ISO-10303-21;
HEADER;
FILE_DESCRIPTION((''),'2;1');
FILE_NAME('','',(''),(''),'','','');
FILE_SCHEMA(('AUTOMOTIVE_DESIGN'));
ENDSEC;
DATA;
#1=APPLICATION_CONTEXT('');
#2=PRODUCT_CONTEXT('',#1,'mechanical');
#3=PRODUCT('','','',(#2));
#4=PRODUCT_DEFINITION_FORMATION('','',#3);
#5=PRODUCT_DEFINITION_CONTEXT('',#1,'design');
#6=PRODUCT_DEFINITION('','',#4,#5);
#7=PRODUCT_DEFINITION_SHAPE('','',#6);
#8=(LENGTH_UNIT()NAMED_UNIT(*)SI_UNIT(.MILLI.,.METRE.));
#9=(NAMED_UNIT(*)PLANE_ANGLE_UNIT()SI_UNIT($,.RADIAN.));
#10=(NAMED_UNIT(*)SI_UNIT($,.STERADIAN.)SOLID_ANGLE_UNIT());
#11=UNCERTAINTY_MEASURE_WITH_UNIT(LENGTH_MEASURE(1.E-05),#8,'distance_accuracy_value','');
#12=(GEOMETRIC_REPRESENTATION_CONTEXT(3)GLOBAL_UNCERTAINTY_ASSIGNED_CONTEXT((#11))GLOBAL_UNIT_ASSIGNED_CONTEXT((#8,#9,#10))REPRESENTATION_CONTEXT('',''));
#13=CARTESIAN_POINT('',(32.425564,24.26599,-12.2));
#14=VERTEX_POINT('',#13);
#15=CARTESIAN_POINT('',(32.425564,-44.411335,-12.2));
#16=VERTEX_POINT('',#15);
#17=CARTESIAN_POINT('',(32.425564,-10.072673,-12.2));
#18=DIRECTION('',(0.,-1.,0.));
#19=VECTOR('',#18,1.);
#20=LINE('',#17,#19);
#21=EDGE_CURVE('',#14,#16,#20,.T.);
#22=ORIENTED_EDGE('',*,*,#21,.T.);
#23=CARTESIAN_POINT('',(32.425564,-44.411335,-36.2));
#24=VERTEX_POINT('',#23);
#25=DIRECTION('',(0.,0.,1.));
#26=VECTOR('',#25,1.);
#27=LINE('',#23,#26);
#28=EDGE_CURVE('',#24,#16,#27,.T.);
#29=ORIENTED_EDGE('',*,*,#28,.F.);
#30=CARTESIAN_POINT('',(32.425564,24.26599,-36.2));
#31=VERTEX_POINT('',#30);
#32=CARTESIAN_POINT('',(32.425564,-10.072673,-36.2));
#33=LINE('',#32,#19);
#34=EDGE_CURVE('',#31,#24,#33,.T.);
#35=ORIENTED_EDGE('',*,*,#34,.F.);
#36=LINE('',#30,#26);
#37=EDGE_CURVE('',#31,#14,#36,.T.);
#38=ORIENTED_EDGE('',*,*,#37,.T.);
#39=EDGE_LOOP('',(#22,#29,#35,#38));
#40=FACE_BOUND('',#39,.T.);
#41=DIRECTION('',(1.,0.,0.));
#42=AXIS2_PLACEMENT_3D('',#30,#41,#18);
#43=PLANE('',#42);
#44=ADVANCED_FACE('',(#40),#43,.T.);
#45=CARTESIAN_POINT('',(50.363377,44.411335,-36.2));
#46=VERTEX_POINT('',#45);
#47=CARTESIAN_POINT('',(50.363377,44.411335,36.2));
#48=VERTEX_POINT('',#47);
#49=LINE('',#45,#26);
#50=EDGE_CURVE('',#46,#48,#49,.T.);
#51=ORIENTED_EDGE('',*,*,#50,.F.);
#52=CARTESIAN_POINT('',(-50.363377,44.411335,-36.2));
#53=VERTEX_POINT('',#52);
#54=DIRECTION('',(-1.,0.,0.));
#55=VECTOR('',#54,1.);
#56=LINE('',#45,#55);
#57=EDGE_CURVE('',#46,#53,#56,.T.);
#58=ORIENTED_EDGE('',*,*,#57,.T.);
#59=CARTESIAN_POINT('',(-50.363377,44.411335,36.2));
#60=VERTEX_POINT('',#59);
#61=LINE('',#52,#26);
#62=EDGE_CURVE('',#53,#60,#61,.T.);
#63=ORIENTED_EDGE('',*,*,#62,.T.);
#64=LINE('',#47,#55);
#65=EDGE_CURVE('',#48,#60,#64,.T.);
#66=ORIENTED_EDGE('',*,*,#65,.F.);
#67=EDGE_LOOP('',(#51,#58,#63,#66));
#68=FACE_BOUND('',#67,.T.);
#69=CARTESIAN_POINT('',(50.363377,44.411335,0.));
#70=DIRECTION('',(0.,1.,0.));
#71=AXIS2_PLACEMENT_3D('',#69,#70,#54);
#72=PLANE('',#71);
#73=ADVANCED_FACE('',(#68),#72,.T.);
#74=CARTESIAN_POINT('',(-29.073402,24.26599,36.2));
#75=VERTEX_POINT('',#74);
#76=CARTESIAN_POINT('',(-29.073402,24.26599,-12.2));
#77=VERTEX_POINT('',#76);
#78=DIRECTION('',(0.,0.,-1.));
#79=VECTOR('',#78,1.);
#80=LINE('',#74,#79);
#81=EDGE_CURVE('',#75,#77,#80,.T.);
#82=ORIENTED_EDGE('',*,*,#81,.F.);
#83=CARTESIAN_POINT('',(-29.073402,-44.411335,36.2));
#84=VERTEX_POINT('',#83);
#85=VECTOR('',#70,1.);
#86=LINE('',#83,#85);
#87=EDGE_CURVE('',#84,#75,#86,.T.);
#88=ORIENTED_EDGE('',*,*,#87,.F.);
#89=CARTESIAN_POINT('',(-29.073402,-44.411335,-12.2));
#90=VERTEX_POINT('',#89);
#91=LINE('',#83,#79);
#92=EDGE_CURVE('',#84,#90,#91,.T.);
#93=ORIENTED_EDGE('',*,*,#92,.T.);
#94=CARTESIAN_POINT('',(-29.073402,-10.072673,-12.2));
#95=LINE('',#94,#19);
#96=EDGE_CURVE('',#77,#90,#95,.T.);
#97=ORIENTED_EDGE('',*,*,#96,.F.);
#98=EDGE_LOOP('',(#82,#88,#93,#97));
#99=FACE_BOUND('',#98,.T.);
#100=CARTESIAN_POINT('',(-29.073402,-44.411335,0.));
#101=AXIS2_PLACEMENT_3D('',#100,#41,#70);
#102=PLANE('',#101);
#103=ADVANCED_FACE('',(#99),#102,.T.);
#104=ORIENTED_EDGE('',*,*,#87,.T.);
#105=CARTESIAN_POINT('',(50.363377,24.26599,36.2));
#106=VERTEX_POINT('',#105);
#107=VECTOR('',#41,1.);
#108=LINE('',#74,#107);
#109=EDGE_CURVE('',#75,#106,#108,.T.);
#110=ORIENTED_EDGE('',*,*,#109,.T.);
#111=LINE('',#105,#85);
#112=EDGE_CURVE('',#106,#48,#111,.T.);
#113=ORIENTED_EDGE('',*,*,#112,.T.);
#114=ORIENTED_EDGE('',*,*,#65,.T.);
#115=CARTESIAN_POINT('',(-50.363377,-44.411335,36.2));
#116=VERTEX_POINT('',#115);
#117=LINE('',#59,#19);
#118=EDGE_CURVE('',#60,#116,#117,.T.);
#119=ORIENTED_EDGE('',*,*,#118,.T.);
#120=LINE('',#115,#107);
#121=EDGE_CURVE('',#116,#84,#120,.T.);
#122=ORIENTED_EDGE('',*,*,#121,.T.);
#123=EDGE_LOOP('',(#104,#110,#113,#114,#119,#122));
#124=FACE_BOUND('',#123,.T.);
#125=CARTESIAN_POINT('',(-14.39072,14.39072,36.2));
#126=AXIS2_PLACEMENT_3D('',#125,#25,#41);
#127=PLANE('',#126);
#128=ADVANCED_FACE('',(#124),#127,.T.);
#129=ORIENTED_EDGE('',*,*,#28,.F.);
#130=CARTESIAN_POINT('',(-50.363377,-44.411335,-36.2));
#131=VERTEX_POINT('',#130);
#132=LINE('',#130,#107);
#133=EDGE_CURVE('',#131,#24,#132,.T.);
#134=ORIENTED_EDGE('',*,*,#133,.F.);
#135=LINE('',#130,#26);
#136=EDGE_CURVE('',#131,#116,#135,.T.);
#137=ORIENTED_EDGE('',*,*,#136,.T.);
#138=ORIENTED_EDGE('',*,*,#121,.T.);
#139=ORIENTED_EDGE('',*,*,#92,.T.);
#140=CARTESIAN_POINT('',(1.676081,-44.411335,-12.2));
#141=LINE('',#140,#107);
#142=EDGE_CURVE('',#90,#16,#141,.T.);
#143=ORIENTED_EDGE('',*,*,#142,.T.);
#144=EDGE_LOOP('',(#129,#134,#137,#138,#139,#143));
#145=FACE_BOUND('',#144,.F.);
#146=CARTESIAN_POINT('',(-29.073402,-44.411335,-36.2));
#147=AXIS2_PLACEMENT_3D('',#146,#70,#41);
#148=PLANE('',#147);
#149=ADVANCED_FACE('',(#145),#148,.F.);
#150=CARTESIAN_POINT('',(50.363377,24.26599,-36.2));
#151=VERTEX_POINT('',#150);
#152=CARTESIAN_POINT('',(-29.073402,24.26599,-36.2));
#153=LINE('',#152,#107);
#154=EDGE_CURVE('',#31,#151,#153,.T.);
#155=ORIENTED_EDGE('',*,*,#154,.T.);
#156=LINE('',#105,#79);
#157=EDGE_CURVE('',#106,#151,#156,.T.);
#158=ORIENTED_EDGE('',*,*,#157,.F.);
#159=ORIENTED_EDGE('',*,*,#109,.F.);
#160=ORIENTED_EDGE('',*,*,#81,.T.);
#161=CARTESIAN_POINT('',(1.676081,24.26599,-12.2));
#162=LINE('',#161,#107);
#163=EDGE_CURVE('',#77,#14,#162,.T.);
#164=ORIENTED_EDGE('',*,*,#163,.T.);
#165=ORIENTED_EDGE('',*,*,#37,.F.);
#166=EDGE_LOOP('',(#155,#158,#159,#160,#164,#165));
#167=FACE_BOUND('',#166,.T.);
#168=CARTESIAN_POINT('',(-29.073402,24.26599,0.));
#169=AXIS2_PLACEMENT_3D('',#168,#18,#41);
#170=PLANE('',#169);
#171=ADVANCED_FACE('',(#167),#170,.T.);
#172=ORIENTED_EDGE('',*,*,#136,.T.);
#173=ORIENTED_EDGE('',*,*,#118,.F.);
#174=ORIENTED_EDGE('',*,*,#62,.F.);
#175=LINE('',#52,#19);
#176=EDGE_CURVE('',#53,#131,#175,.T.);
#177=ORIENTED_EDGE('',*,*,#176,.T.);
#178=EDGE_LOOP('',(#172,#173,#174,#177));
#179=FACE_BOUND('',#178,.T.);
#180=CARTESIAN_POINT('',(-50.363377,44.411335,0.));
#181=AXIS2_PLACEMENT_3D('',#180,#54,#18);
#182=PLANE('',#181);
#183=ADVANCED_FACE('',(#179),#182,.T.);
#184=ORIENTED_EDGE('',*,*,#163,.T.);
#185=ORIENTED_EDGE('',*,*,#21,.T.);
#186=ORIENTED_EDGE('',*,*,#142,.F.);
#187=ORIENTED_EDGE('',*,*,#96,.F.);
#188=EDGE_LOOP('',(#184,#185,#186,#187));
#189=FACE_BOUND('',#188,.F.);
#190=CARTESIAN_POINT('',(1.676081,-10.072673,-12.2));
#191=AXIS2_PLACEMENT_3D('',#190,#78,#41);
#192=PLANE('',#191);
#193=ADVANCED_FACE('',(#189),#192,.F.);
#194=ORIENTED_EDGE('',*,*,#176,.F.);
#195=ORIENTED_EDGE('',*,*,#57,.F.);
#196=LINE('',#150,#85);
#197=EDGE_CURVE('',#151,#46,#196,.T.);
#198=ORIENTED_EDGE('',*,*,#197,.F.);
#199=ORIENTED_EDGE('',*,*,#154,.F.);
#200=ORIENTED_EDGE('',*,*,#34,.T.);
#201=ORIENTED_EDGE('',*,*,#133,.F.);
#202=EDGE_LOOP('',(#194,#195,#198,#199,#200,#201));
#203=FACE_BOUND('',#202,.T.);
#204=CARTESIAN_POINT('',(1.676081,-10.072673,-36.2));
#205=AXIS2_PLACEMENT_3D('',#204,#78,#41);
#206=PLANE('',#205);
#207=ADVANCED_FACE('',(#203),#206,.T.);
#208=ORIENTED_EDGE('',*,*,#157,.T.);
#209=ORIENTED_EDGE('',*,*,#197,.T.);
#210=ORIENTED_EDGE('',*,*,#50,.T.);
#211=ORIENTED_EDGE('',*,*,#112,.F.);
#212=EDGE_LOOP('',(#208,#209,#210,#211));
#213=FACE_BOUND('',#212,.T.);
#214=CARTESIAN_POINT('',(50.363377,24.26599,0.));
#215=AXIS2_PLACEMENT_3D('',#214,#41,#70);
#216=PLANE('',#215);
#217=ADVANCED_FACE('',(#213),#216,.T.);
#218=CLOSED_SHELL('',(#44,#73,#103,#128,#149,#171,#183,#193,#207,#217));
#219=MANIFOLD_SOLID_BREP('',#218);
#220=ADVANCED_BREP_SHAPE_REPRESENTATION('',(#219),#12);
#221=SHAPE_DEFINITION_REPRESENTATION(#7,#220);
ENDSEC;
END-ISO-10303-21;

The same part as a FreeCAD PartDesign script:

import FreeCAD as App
import Part
import Sketcher
from FreeCAD import Vector


def add_polygon(sketch, points):
    """Adds a closed chain of lines whose ends are joined by coincident constraints."""
    first, n = sketch.GeometryCount, len(points)
    for a, b in zip(points, points[1:] + points[:1]):
        sketch.addGeometry(Part.LineSegment(App.Vector(*a, 0), App.Vector(*b, 0)), False)
    for i in range(n):
        sketch.addConstraint(Sketcher.Constraint("Coincident", first + i, 2, first + (i + 1) % n, 1))

doc = App.newDocument("Part")
body = doc.addObject("PartDesign::Body", "Body")

# Sketch on XY plane
sketch1 = body.newObject("Sketcher::SketchObject", "Sketch")
sketch1.AttachmentSupport = (doc.getObject("XY_Plane"), [""])
sketch1.MapMode = "FlatFace"
add_polygon(sketch1, [(50, 24), (50, 44), (-50, 44), (-50, -44), (-29, -44), (-29, 24)])  # lines 0-5
sketch1.addConstraint(Sketcher.Constraint("Vertical", 0))
sketch1.addConstraint(Sketcher.Constraint("Horizontal", 1))
sketch1.addConstraint(Sketcher.Constraint("Vertical", 2))
sketch1.addConstraint(Sketcher.Constraint("Horizontal", 3))
sketch1.addConstraint(Sketcher.Constraint("Vertical", 4))
sketch1.addConstraint(Sketcher.Constraint("Horizontal", 5))
sketch1.addConstraint(Sketcher.Constraint("Symmetric", 0, 2, 2, 2, -1, 1))
sketch1.addConstraint(Sketcher.Constraint("DistanceX", 5, 1, 5, 2, 79.436779))
sketch1.addConstraint(Sketcher.Constraint("DistanceY", 2, 2, 2, 1, 88.82267))
sketch1.addConstraint(Sketcher.Constraint("DistanceX", 1, 2, 1, 1, 100.726753))
sketch1.addConstraint(Sketcher.Constraint("DistanceY", 0, 1, 0, 2, 20.145345))
pad1 = body.newObject("PartDesign::Pad", "Pad")
pad1.Profile = sketch1
pad1.Length = 72.4
pad1.Midplane = True

# Sketch on XY plane
sketch2 = body.newObject("Sketcher::SketchObject", "Sketch001")
sketch2.AttachmentSupport = (doc.getObject("XY_Plane"), [""])
sketch2.MapMode = "FlatFace"
sketch2.AttachmentOffset = App.Placement(Vector(0, 0, -36.2), App.Rotation())
add_polygon(sketch2, [(-29, -44), (-29, 24), (32, 24), (32, -44)])  # lines 0-3
sketch2.addConstraint(Sketcher.Constraint("Vertical", 0))
sketch2.addConstraint(Sketcher.Constraint("Horizontal", 1))
sketch2.addConstraint(Sketcher.Constraint("Vertical", 2))
sketch2.addConstraint(Sketcher.Constraint("Horizontal", 3))
sketch2.addConstraint(Sketcher.Constraint("DistanceX", 1, 1, 1, 2, 61.498966))
sketch2.addConstraint(Sketcher.Constraint("DistanceY", 0, 1, 0, 2, 68.677325))
sketch2.addConstraint(Sketcher.Constraint("DistanceY", -1, 1, 0, 2, 24.26599))
sketch2.addConstraint(Sketcher.Constraint("DistanceX", 0, 2, -1, 1, 29.073402))
pad2 = body.newObject("PartDesign::Pad", "Pad001")
pad2.Profile = sketch2
pad2.Length = 24

doc.recompute()
